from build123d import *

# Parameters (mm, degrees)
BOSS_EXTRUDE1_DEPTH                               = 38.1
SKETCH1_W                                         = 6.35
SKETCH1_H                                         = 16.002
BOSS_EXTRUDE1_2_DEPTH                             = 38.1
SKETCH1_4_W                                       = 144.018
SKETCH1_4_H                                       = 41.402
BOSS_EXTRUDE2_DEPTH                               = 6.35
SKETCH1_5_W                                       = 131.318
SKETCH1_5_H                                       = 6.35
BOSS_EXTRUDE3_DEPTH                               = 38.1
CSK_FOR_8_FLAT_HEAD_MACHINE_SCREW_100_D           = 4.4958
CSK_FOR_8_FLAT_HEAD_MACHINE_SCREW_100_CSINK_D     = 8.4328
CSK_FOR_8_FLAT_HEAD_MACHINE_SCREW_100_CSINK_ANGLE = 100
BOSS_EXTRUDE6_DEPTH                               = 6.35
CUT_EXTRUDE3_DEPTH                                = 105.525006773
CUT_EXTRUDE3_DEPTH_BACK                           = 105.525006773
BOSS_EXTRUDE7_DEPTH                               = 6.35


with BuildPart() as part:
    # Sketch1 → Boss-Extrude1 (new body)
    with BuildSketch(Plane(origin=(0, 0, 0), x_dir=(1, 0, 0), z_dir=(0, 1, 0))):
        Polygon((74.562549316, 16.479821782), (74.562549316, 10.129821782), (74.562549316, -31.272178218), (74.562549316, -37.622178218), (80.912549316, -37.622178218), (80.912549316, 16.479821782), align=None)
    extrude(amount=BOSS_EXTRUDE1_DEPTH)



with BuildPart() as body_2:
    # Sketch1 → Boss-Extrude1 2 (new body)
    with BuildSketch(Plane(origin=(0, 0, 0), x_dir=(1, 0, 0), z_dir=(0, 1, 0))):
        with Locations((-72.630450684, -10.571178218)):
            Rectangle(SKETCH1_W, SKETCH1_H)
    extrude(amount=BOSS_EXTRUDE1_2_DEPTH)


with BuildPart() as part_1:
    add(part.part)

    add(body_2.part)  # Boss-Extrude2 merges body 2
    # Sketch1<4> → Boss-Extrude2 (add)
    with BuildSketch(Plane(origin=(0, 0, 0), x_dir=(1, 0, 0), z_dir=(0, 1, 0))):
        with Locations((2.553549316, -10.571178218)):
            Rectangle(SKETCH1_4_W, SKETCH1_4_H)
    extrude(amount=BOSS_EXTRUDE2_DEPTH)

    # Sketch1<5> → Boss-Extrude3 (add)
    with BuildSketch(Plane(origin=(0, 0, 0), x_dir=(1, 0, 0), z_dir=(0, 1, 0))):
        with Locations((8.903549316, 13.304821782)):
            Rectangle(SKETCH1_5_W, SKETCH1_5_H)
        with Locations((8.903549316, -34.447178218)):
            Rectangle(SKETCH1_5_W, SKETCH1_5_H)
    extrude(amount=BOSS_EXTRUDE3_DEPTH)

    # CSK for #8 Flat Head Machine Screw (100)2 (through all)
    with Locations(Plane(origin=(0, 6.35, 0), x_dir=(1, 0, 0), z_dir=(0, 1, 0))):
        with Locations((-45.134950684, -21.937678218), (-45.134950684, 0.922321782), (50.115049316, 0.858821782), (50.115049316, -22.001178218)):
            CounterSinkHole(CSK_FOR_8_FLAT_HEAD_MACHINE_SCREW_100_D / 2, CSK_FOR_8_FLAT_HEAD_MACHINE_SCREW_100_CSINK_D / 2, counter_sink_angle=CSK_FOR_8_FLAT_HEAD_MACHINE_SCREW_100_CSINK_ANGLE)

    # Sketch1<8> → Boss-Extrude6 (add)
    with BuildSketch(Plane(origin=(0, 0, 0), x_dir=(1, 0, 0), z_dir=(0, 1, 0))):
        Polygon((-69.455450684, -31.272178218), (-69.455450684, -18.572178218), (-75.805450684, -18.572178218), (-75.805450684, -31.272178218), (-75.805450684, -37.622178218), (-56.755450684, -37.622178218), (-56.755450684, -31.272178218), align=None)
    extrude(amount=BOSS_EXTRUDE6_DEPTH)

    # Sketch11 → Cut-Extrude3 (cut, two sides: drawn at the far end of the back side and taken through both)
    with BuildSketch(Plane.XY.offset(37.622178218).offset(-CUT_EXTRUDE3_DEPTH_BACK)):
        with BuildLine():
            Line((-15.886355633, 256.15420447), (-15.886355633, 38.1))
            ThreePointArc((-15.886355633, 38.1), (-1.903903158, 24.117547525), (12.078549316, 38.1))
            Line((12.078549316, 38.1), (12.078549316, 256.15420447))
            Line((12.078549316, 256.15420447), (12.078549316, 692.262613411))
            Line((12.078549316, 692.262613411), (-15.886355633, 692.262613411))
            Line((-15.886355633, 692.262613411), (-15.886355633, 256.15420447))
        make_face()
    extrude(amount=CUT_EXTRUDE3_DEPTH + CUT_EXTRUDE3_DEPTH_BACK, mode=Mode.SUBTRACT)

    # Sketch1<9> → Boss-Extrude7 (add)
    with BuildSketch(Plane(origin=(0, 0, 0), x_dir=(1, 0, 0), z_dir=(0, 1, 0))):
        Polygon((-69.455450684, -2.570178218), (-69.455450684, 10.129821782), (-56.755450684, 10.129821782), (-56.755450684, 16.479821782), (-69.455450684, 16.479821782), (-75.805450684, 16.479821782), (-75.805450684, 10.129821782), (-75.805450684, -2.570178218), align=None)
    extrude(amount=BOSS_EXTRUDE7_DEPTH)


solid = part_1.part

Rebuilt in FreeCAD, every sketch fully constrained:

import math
import FreeCAD as App
import Part
import Sketcher
from FreeCAD import Vector
Q = App.Units.Quantity

doc = App.newDocument("Part")
body = doc.addObject("PartDesign::Body", "Body")

sketch1 = body.newObject("Sketcher::SketchObject", "Sketch")
sketch1.AttachmentSupport = (doc.getObject("XZ_Plane"), [""])
sketch1.MapMode = "FlatFace"
sketch1.addGeometry([
    Part.LineSegment(Vector(74.562549, -16.479822, 0), Vector(74.562549, 37.622178, 0)),
    Part.LineSegment(Vector(74.562549, 37.622178, 0), Vector(80.912549, 37.622178, 0)),
    Part.LineSegment(Vector(80.912549, 37.622178, 0), Vector(80.912549, -16.479822, 0)),
    Part.LineSegment(Vector(80.912549, -16.479822, 0), Vector(74.562549, -16.479822, 0)),
], False)
sketch1.addConstraint([
    Sketcher.Constraint("Coincident", 0, 2, 1, 1),
    Sketcher.Constraint("Coincident", 1, 2, 2, 1),
    Sketcher.Constraint("Coincident", 2, 2, 3, 1),
    Sketcher.Constraint("Coincident", 3, 2, 0, 1),
    Sketcher.Constraint("Vertical", 0),
    Sketcher.Constraint("Horizontal", 1),
    Sketcher.Constraint("Vertical", 2),
    Sketcher.Constraint("Horizontal", 3),
    Sketcher.Constraint("DistanceX", 1, 1, 1, 2, Q("0.25 in")),
    Sketcher.Constraint("DistanceY", 0, 1, 0, 2, Q("2.13 in")),
    Sketcher.Constraint("DistanceX", -1, 1, 0, 2, Q("74.562549 mm")),
    Sketcher.Constraint("DistanceY", -1, 1, 0, 2, Q("37.622178 mm")),
])
pad1 = body.newObject("PartDesign::Pad", "Pad")
pad1.Profile = sketch1
pad1.Length = Q("1.5 in")
pad1.Reversed = True
body2 = doc.addObject("PartDesign::Body", "Body001")

sketch2 = body2.newObject("Sketcher::SketchObject", "Sketch001")
sketch2.AttachmentSupport = (doc.getObject("XZ_Plane001"), [""])
sketch2.MapMode = "FlatFace"
sketch2.addGeometry([
    Part.LineSegment(Vector(-75.805451, 2.570178, 0), Vector(-75.805451, 18.572178, 0)),
    Part.LineSegment(Vector(-75.805451, 18.572178, 0), Vector(-69.455451, 18.572178, 0)),
    Part.LineSegment(Vector(-69.455451, 18.572178, 0), Vector(-69.455451, 2.570178, 0)),
    Part.LineSegment(Vector(-69.455451, 2.570178, 0), Vector(-75.805451, 2.570178, 0)),
], False)
sketch2.addConstraint([
    Sketcher.Constraint("Coincident", 0, 2, 1, 1),
    Sketcher.Constraint("Coincident", 1, 2, 2, 1),
    Sketcher.Constraint("Coincident", 2, 2, 3, 1),
    Sketcher.Constraint("Coincident", 3, 2, 0, 1),
    Sketcher.Constraint("Vertical", 0),
    Sketcher.Constraint("Horizontal", 1),
    Sketcher.Constraint("Vertical", 2),
    Sketcher.Constraint("Horizontal", 3),
    Sketcher.Constraint("DistanceX", 1, 1, 1, 2, Q("0.25 in")),
    Sketcher.Constraint("DistanceY", 0, 1, 0, 2, Q("0.63 in")),
    Sketcher.Constraint("DistanceX", 0, 2, -1, 1, Q("75.805451 mm")),
    Sketcher.Constraint("DistanceY", -1, 1, 0, 2, Q("18.572178 mm")),
])
pad2 = body2.newObject("PartDesign::Pad", "Pad001")
pad2.Profile = sketch2
pad2.Length = Q("1.5 in")
pad2.Reversed = True
body.AllowCompound = True
doc.recompute()

boolean = body.newObject("PartDesign::Boolean", "Boolean")
boolean.Type = "Fuse"
boolean.addObjects([body2])

sketch3 = body.newObject("Sketcher::SketchObject", "Sketch002")
sketch3.AttachmentSupport = (doc.getObject("XZ_Plane"), [""])
sketch3.MapMode = "FlatFace"
sketch3.addGeometry([
    Part.LineSegment(Vector(-69.455451, -10.129822, 0), Vector(-69.455451, 31.272178, 0)),
    Part.LineSegment(Vector(-69.455451, 31.272178, 0), Vector(74.562549, 31.272178, 0)),
    Part.LineSegment(Vector(74.562549, 31.272178, 0), Vector(74.562549, -10.129822, 0)),
    Part.LineSegment(Vector(74.562549, -10.129822, 0), Vector(-69.455451, -10.129822, 0)),
], False)
sketch3.addConstraint([
    Sketcher.Constraint("Coincident", 0, 2, 1, 1),
    Sketcher.Constraint("Coincident", 1, 2, 2, 1),
    Sketcher.Constraint("Coincident", 2, 2, 3, 1),
    Sketcher.Constraint("Coincident", 3, 2, 0, 1),
    Sketcher.Constraint("Vertical", 0),
    Sketcher.Constraint("Horizontal", 1),
    Sketcher.Constraint("Vertical", 2),
    Sketcher.Constraint("Horizontal", 3),
    Sketcher.Constraint("DistanceX", 1, 1, 1, 2, Q("5.67 in")),
    Sketcher.Constraint("DistanceY", 0, 1, 0, 2, Q("1.63 in")),
    Sketcher.Constraint("DistanceX", 0, 2, -1, 1, Q("69.455451 mm")),
    Sketcher.Constraint("DistanceY", -1, 1, 0, 2, Q("31.272178 mm")),
])
pad3 = body.newObject("PartDesign::Pad", "Pad002")
pad3.Profile = sketch3
pad3.Length = Q("0.25 in")
pad3.Reversed = True

sketch4 = body.newObject("Sketcher::SketchObject", "Sketch003")
sketch4.AttachmentSupport = (doc.getObject("XZ_Plane"), [""])
sketch4.MapMode = "FlatFace"
sketch4.addGeometry([
    Part.LineSegment(Vector(-56.755451, -16.479822, 0), Vector(-56.755451, -10.129822, 0)),
    Part.LineSegment(Vector(-56.755451, -10.129822, 0), Vector(74.562549, -10.129822, 0)),
    Part.LineSegment(Vector(74.562549, -10.129822, 0), Vector(74.562549, -16.479822, 0)),
    Part.LineSegment(Vector(74.562549, -16.479822, 0), Vector(-56.755451, -16.479822, 0)),
    Part.LineSegment(Vector(-56.755451, 31.272178, 0), Vector(-56.755451, 37.622178, 0)),
    Part.LineSegment(Vector(-56.755451, 37.622178, 0), Vector(74.562549, 37.622178, 0)),
    Part.LineSegment(Vector(74.562549, 37.622178, 0), Vector(74.562549, 31.272178, 0)),
    Part.LineSegment(Vector(74.562549, 31.272178, 0), Vector(-56.755451, 31.272178, 0)),
], False)
sketch4.addConstraint([
    Sketcher.Constraint("Coincident", 0, 2, 1, 1),
    Sketcher.Constraint("Coincident", 1, 2, 2, 1),
    Sketcher.Constraint("Coincident", 2, 2, 3, 1),
    Sketcher.Constraint("Coincident", 3, 2, 0, 1),
    Sketcher.Constraint("Coincident", 4, 2, 5, 1),
    Sketcher.Constraint("Coincident", 5, 2, 6, 1),
    Sketcher.Constraint("Coincident", 6, 2, 7, 1),
    Sketcher.Constraint("Coincident", 7, 2, 4, 1),
    Sketcher.Constraint("Vertical", 0),
    Sketcher.Constraint("Horizontal", 1),
    Sketcher.Constraint("Vertical", 2),
    Sketcher.Constraint("Horizontal", 3),
    Sketcher.Constraint("Vertical", 4),
    Sketcher.Constraint("Horizontal", 5),
    Sketcher.Constraint("Vertical", 6),
    Sketcher.Constraint("Horizontal", 7),
    Sketcher.Constraint("Vertical", 3, 2, 4, 2),
    Sketcher.Constraint("Vertical", 2, 2, 5, 2),
    Sketcher.Constraint("Equal", 2, 4),
    Sketcher.Constraint("DistanceX", 1, 1, 1, 2, Q("5.17 in")),
    Sketcher.Constraint("DistanceY", 0, 1, 0, 2, Q("0.25 in")),
    Sketcher.Constraint("DistanceY", 0, 2, 4, 2, Q("1.88 in")),
    Sketcher.Constraint("DistanceX", 0, 2, -1, 1, Q("56.755451 mm")),
    Sketcher.Constraint("DistanceY", 0, 2, -1, 1, Q("10.129822 mm")),
])
pad4 = body.newObject("PartDesign::Pad", "Pad003")
pad4.Profile = sketch4
pad4.Length = Q("1.5 in")
pad4.Reversed = True

sketch5 = body.newObject("Sketcher::SketchObject", "Sketch004")
sketch5.AttachmentSupport = (doc.getObject("XZ_Plane"), [""])
sketch5.MapMode = "FlatFace"
sketch5.AttachmentOffset = App.Placement(Vector(0, 0, -0.25 * 25.4), App.Rotation())
sketch5.addGeometry([
    Part.Circle(Vector(-45.134951, 21.937678, 0), Vector(0, 0, 1), 2.2479),
    Part.Circle(Vector(-45.134951, -0.922322, 0), Vector(0, 0, 1), 2.2479),
    Part.Circle(Vector(50.115049, -0.858822, 0), Vector(0, 0, 1), 2.2479),
    Part.Circle(Vector(50.115049, 22.001178, 0), Vector(0, 0, 1), 2.2479),
], False)
sketch5.addConstraint([
    Sketcher.Constraint("Equal", 0, 1),
    Sketcher.Constraint("Equal", 1, 2),
    Sketcher.Constraint("Equal", 2, 3),
    Sketcher.Constraint("Vertical", 0, 3, 1, 3),
    Sketcher.Constraint("Vertical", 2, 3, 3, 3),
    Sketcher.Constraint("Diameter", 0, Q("0.177 in")),
    Sketcher.Constraint("DistanceY", 1, 3, 0, 3, Q("0.9 in")),
    Sketcher.Constraint("DistanceY", 2, 3, 3, 3, Q("0.9 in")),
    Sketcher.Constraint("DistanceX", 1, 3, 2, 3, Q("3.75 in")),
    Sketcher.Constraint("DistanceY", 1, 3, 2, 3, Q("0.0025 in")),
    Sketcher.Constraint("DistanceX", 0, 3, -1, 1, Q("45.134951 mm")),
    Sketcher.Constraint("DistanceY", -1, 1, 0, 3, Q("21.937678 mm")),
])
doc.recompute()
hole = body.newObject("PartDesign::Hole", "Hole")
hole.Profile = sketch5
hole.ThreadType = "None"
hole.Diameter = Q("0.177 in")
hole.DepthType = "ThroughAll"
hole.HoleCutType = "Countersink"
hole.HoleCutDiameter = Q("0.332 in")
hole.HoleCutCountersinkAngle = 100
hole.Reversed = True

sketch6 = body.newObject("Sketcher::SketchObject", "Sketch005")
sketch6.AttachmentSupport = (doc.getObject("XZ_Plane"), [""])
sketch6.MapMode = "FlatFace"
sketch6.addGeometry([
    Part.LineSegment(Vector(-69.455451, 31.272178, 0), Vector(-69.455451, 18.572178, 0)),
    Part.LineSegment(Vector(-69.455451, 18.572178, 0), Vector(-75.805451, 18.572178, 0)),
    Part.LineSegment(Vector(-75.805451, 18.572178, 0), Vector(-75.805451, 37.622178, 0)),
    Part.LineSegment(Vector(-75.805451, 37.622178, 0), Vector(-56.755451, 37.622178, 0)),
    Part.LineSegment(Vector(-56.755451, 37.622178, 0), Vector(-56.755451, 31.272178, 0)),
    Part.LineSegment(Vector(-56.755451, 31.272178, 0), Vector(-69.455451, 31.272178, 0)),
], False)
sketch6.addConstraint([
    Sketcher.Constraint("Coincident", 0, 2, 1, 1),
    Sketcher.Constraint("Coincident", 1, 2, 2, 1),
    Sketcher.Constraint("Coincident", 2, 2, 3, 1),
    Sketcher.Constraint("Coincident", 3, 2, 4, 1),
    Sketcher.Constraint("Coincident", 4, 2, 5, 1),
    Sketcher.Constraint("Coincident", 5, 2, 0, 1),
    Sketcher.Constraint("Vertical", 0),
    Sketcher.Constraint("Horizontal", 1),
    Sketcher.Constraint("Vertical", 2),
    Sketcher.Constraint("Horizontal", 3),
    Sketcher.Constraint("Vertical", 4),
    Sketcher.Constraint("Horizontal", 5),
    Sketcher.Constraint("Equal", 5, 0),
    Sketcher.Constraint("Equal", 3, 2),
    Sketcher.Constraint("DistanceX", 5, 2, 5, 1, Q("0.5 in")),
    Sketcher.Constraint("DistanceX", 1, 2, 1, 1, Q("0.25 in")),
    Sketcher.Constraint("DistanceX", 0, 2, -1, 1, Q("69.455451 mm")),
    Sketcher.Constraint("DistanceY", -1, 1, 0, 2, Q("18.572178 mm")),
])
pad5 = body.newObject("PartDesign::Pad", "Pad004")
pad5.Profile = sketch6
pad5.Length = Q("0.25 in")
pad5.Reversed = True

sketch7 = body.newObject("Sketcher::SketchObject", "Sketch006")
sketch7.AttachmentSupport = (doc.getObject("XY_Plane"), [""])
sketch7.MapMode = "FlatFace"
sketch7.AttachmentOffset = App.Placement(Vector(0, 0, 37.622178), App.Rotation())
sketch7.addGeometry([
    Part.ArcOfCircle(Part.Circle(Vector(-1.903903, 38.1, 0), Vector(0, 0, 1), 13.982452), math.radians(180), math.radians(360)),
    Part.LineSegment(Vector(12.078549, 38.1, 0), Vector(12.078549, 692.262613, 0)),
    Part.LineSegment(Vector(12.078549, 692.262613, 0), Vector(-15.886356, 692.262613, 0)),
    Part.LineSegment(Vector(-15.886356, 692.262613, 0), Vector(-15.886356, 38.1, 0)),
], False)
sketch7.addConstraint([
    Sketcher.Constraint("Tangent", 0, 2, 1, 1),
    Sketcher.Constraint("Coincident", 1, 2, 2, 1),
    Sketcher.Constraint("Coincident", 2, 2, 3, 1),
    Sketcher.Constraint("Tangent", 3, 2, 0, 1),
    Sketcher.Constraint("Vertical", 1),
    Sketcher.Constraint("Horizontal", 2),
    Sketcher.Constraint("Vertical", 3),
    Sketcher.Constraint("DistanceY", -1, 1, 0, 3, Q("1.5 in")),
    Sketcher.Constraint("Radius", 0, Q("13.982452 mm")),
    Sketcher.Constraint("DistanceY", 1, 1, 1, 2, Q("654.162613 mm")),
    Sketcher.Constraint("DistanceX", -1, 1, 0, 2, Q("12.078549 mm")),
])
pocket1 = body.newObject("PartDesign::Pocket", "Pocket")
pocket1.Profile = sketch7
pocket1.Type = "ThroughAll"
pocket1.Midplane = True

sketch8 = body.newObject("Sketcher::SketchObject", "Sketch007")
sketch8.AttachmentSupport = (doc.getObject("XZ_Plane"), [""])
sketch8.MapMode = "FlatFace"
sketch8.addGeometry([
    Part.LineSegment(Vector(-69.455451, 2.570178, 0), Vector(-69.455451, -10.129822, 0)),
    Part.LineSegment(Vector(-69.455451, -10.129822, 0), Vector(-56.755451, -10.129822, 0)),
    Part.LineSegment(Vector(-56.755451, -10.129822, 0), Vector(-56.755451, -16.479822, 0)),
    Part.LineSegment(Vector(-56.755451, -16.479822, 0), Vector(-75.805451, -16.479822, 0)),
    Part.LineSegment(Vector(-75.805451, -16.479822, 0), Vector(-75.805451, 2.570178, 0)),
    Part.LineSegment(Vector(-75.805451, 2.570178, 0), Vector(-69.455451, 2.570178, 0)),
], False)
sketch8.addConstraint([
    Sketcher.Constraint("Coincident", 0, 2, 1, 1),
    Sketcher.Constraint("Coincident", 1, 2, 2, 1),
    Sketcher.Constraint("Coincident", 2, 2, 3, 1),
    Sketcher.Constraint("Coincident", 3, 2, 4, 1),
    Sketcher.Constraint("Coincident", 4, 2, 5, 1),
    Sketcher.Constraint("Coincident", 5, 2, 0, 1),
    Sketcher.Constraint("Vertical", 0),
    Sketcher.Constraint("Horizontal", 1),
    Sketcher.Constraint("Vertical", 2),
    Sketcher.Constraint("Horizontal", 3),
    Sketcher.Constraint("Vertical", 4),
    Sketcher.Constraint("Horizontal", 5),
    Sketcher.Constraint("Equal", 1, 0),
    Sketcher.Constraint("Equal", 5, 2),
    Sketcher.Constraint("DistanceX", 1, 1, 1, 2, Q("0.5 in")),
    Sketcher.Constraint("DistanceX", 3, 2, 3, 1, Q("0.75 in")),
    Sketcher.Constraint("DistanceX", 0, 2, -1, 1, Q("69.455451 mm")),
    Sketcher.Constraint("DistanceY", 0, 2, -1, 1, Q("10.129822 mm")),
])
pad6 = body.newObject("PartDesign::Pad", "Pad005")
pad6.Profile = sketch8
pad6.Length = Q("0.25 in")
pad6.Reversed = True

doc.recompute()
